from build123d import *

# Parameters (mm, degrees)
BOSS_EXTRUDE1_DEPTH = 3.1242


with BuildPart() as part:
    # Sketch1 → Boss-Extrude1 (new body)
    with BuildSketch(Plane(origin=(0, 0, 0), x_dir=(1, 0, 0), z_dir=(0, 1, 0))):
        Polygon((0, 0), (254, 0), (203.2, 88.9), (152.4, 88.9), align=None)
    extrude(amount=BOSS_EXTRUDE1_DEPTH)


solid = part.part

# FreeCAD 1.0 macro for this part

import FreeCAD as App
import Part
import Sketcher
from FreeCAD import Vector
Q = App.Units.Quantity

doc = App.newDocument("Part")
body = doc.addObject("PartDesign::Body", "Body")

# Sketch on XZ plane
sketch1 = body.newObject("Sketcher::SketchObject", "Sketch")
sketch1.AttachmentSupport = (doc.getObject("XZ_Plane"), [""])
sketch1.MapMode = "FlatFace"
sketch1.addGeometry([
    Part.LineSegment(Vector(0, 0, 0), Vector(254, 0, 0)),
    Part.LineSegment(Vector(254, 0, 0), Vector(203.2, -88.9, 0)),
    Part.LineSegment(Vector(203.2, -88.9, 0), Vector(152.4, -88.9, 0)),
    Part.LineSegment(Vector(152.4, -88.9, 0), Vector(0, 0, 0)),
], False)
sketch1.addConstraint([
    Sketcher.Constraint("Coincident", 0, 2, 1, 1),
    Sketcher.Constraint("Coincident", 1, 2, 2, 1),
    Sketcher.Constraint("Coincident", 2, 2, 3, 1),
    Sketcher.Constraint("Coincident", 3, 2, 0, 1),
    Sketcher.Constraint("Horizontal", 0),
    Sketcher.Constraint("Horizontal", 2),
    Sketcher.Constraint("Coincident", 3, 2, -1, 1),
    Sketcher.Constraint("DistanceX", 0, 1, 0, 2, Q("10 in")),
    Sketcher.Constraint("DistanceX", 2, 2, 2, 1, Q("2 in")),
    Sketcher.Constraint("DistanceX", -1, 1, 1, 2, Q("8 in")),
    Sketcher.Constraint("DistanceY", 1, 2, -1, 1, Q("3.5 in")),
])
pad1 = body.newObject("PartDesign::Pad", "Pad")
pad1.Profile = sketch1
pad1.Length = Q("0.123 in")
pad1.Reversed = True

doc.recompute()
